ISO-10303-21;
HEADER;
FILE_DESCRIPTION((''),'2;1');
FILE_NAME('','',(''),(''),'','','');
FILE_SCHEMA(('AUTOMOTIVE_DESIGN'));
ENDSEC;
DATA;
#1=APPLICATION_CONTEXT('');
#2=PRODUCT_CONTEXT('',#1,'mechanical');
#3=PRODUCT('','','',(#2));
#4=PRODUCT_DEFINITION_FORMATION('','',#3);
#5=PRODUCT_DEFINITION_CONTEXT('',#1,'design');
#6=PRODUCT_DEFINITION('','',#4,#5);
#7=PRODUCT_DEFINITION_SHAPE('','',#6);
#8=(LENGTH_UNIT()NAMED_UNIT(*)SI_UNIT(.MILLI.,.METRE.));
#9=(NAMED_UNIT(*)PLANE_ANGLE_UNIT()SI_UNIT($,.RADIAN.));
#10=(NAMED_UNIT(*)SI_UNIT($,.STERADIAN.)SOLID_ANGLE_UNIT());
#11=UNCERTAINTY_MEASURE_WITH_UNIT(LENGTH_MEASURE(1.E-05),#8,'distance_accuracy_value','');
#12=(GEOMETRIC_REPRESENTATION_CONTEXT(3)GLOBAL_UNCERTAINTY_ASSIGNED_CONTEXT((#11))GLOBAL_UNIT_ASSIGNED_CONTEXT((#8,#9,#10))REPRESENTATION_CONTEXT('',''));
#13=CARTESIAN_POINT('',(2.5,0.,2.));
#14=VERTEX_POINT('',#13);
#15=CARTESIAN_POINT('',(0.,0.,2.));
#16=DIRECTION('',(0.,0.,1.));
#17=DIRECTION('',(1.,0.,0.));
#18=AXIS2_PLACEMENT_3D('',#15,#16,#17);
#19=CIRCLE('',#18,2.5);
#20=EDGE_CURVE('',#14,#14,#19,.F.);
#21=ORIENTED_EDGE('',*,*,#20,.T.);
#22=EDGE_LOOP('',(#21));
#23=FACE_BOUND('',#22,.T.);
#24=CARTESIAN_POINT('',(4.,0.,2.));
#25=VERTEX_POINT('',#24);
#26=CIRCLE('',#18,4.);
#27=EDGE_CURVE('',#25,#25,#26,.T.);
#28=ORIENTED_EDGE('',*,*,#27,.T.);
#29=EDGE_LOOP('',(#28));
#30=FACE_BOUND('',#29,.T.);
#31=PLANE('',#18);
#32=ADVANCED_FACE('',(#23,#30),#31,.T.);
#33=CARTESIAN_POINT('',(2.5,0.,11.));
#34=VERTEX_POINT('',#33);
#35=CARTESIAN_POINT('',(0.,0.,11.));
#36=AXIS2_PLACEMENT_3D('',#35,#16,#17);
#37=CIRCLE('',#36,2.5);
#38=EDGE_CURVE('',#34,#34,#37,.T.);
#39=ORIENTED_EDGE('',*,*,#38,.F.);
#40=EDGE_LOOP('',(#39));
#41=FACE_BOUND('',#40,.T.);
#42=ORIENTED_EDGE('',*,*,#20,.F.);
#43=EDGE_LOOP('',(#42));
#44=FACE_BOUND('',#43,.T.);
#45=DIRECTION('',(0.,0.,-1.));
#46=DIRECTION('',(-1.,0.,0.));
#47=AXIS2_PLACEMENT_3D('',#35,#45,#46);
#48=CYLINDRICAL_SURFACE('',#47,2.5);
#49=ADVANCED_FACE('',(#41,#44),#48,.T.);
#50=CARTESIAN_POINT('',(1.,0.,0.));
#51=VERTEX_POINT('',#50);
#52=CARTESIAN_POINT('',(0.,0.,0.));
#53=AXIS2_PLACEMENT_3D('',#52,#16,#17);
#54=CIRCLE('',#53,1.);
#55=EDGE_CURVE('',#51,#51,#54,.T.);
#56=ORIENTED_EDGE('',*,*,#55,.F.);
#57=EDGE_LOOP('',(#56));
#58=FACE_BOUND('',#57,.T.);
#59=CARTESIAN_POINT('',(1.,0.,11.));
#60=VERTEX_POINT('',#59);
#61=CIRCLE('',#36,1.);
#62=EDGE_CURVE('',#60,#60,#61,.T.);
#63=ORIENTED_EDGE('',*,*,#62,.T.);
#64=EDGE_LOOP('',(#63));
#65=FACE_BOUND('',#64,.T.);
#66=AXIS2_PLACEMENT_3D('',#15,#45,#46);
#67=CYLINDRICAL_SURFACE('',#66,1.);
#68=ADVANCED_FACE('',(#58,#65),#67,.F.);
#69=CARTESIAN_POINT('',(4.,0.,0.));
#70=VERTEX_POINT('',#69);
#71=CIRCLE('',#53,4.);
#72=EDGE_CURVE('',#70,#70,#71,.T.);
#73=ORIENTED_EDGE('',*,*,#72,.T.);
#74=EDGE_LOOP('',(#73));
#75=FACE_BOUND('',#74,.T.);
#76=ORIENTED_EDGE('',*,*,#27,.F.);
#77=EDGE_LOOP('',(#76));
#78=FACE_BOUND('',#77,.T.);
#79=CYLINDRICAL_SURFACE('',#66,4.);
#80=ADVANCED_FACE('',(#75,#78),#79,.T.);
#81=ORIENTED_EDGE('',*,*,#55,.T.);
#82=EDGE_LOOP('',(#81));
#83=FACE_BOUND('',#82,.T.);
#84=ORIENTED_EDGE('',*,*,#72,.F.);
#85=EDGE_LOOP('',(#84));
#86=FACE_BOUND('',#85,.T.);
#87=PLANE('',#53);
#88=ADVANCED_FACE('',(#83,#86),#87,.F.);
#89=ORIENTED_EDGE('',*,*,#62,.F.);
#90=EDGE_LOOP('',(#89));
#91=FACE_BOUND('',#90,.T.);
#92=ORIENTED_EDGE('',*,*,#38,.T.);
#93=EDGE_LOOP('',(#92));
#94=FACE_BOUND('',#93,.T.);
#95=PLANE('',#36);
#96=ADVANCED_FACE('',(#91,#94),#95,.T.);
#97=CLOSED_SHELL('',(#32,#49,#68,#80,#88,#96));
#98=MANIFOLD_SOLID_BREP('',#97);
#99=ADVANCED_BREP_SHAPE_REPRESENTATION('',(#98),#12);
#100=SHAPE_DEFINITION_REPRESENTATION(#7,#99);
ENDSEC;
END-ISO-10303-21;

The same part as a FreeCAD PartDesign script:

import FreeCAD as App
import Part
import Sketcher
Q = App.Units.Quantity

doc = App.newDocument("Part")
body = doc.addObject("PartDesign::Body", "Body")

sketch1 = body.newObject("Sketcher::SketchObject", "Sketch")
sketch1.AttachmentSupport = (doc.getObject("XY_Plane"), [""])
sketch1.MapMode = "FlatFace"
sketch1.addGeometry(Part.Circle(App.Vector(0, 0, 0), App.Vector(0, 0, 1), 4), False)
sketch1.addGeometry(Part.Circle(App.Vector(0, 0, 0), App.Vector(0, 0, 1), 1), False)
sketch1.addConstraint(Sketcher.Constraint("Coincident", 0, 3, -1, 1))
sketch1.addConstraint(Sketcher.Constraint("Coincident", 1, 3, -1, 1))
sketch1.addConstraint(Sketcher.Constraint("Diameter", 0, Q("8 mm")))
sketch1.addConstraint(Sketcher.Constraint("Diameter", 1, Q("2 mm")))
pad1 = body.newObject("PartDesign::Pad", "Pad")
pad1.Profile = sketch1
pad1.Length = 2

sketch2 = body.newObject("Sketcher::SketchObject", "Sketch001")
sketch2.AttachmentSupport = (doc.getObject("XY_Plane"), [""])
sketch2.MapMode = "FlatFace"
sketch2.addGeometry(Part.Circle(App.Vector(0, 0, 0), App.Vector(0, 0, 1), 2.5), False)
sketch2.addGeometry(Part.Circle(App.Vector(0, 0, 0), App.Vector(0, 0, 1), 1), False)
sketch2.addConstraint(Sketcher.Constraint("Coincident", 0, 3, -1, 1))
sketch2.addConstraint(Sketcher.Constraint("Coincident", 1, 3, -1, 1))
sketch2.addConstraint(Sketcher.Constraint("Diameter", 0, Q("5 mm")))
sketch2.addConstraint(Sketcher.Constraint("Diameter", 1, Q("2 mm")))
pad2 = body.newObject("PartDesign::Pad", "Pad001")
pad2.Profile = sketch2
pad2.Length = 11

doc.recompute()
